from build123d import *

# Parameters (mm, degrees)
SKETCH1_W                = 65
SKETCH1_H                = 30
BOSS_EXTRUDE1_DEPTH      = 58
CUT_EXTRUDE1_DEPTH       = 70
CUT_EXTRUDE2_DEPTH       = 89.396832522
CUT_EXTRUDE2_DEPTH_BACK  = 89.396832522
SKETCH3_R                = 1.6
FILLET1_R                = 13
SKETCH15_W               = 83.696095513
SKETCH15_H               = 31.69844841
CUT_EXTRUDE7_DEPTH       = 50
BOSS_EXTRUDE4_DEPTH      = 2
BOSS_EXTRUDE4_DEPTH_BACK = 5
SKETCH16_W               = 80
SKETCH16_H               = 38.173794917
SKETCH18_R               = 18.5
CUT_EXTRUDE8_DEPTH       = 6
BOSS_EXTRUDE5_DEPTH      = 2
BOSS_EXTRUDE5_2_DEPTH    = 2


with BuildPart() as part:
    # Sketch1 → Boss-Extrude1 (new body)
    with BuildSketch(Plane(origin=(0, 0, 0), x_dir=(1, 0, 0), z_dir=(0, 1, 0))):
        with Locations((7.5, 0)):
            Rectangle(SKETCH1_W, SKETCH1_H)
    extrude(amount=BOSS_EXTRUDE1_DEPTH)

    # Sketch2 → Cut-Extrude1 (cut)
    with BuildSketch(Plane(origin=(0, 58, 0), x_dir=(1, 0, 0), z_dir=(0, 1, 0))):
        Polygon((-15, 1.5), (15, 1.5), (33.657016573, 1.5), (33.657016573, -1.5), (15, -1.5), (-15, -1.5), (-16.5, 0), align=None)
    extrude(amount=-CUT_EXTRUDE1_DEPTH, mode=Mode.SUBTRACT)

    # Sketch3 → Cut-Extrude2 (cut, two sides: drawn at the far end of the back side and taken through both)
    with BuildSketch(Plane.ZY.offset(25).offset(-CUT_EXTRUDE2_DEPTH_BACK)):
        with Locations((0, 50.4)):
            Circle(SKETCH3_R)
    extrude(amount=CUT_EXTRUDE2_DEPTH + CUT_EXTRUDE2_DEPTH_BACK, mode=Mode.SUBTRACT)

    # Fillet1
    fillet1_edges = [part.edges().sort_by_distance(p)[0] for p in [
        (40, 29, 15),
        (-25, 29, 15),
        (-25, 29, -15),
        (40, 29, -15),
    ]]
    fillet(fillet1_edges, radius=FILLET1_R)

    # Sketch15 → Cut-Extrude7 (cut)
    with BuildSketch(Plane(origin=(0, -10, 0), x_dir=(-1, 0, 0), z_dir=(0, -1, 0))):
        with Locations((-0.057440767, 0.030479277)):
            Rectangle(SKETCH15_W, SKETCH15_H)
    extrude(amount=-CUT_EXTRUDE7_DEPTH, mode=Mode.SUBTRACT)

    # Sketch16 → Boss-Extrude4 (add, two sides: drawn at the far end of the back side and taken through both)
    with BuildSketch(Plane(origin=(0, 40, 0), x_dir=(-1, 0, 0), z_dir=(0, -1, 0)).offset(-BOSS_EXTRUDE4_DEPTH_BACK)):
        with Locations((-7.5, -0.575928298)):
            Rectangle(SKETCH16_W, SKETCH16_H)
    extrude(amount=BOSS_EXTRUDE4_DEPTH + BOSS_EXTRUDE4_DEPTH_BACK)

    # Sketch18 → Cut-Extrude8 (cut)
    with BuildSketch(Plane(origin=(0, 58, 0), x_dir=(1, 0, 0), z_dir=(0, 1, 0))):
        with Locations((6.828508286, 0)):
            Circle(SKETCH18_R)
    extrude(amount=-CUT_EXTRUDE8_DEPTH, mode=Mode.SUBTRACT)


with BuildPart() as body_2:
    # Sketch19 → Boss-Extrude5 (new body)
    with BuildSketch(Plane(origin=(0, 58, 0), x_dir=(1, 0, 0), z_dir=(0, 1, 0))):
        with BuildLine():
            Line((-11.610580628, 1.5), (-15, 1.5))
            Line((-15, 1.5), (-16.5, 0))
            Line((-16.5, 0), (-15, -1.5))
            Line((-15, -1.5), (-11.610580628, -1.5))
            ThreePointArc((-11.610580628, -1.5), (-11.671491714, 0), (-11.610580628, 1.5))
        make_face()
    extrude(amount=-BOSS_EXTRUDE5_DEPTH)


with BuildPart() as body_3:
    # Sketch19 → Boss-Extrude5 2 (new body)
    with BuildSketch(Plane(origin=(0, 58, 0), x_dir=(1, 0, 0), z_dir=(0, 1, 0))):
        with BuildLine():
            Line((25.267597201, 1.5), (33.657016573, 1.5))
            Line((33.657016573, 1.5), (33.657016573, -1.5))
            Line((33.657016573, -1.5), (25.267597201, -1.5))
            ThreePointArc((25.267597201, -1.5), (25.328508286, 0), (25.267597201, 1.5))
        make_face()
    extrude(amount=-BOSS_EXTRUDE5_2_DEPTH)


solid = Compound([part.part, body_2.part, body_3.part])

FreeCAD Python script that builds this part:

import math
import FreeCAD as App
import Part
import Sketcher
from FreeCAD import Vector
Q = App.Units.Quantity


def edges_at(feature, points):
    """Names of the edges that pass closest to the given points."""
    edges = feature.Shape.Edges
    near = lambda p: min(range(len(edges)), key=lambda i: edges[i].distToShape(Part.Vertex(*p))[0])
    return sorted({f"Edge{near(p) + 1}" for p in points})


def add_polygon(sketch, points):
    """Adds a closed chain of lines whose ends are joined by coincident constraints."""
    first, n = sketch.GeometryCount, len(points)
    for a, b in zip(points, points[1:] + points[:1]):
        sketch.addGeometry(Part.LineSegment(App.Vector(*a, 0), App.Vector(*b, 0)), False)
    for i in range(n):
        sketch.addConstraint(Sketcher.Constraint("Coincident", first + i, 2, first + (i + 1) % n, 1))

doc = App.newDocument("Part")
body = doc.addObject("PartDesign::Body", "Body")

# Sketch on XZ plane
sketch1 = doc.addObject("Sketcher::SketchObject", "Sketch")
body.addObject(sketch1)
sketch1.AttachmentSupport = (doc.XZ_Plane, [""])
sketch1.MapMode = "FlatFace"
add_polygon(sketch1, [(-25, -15), (-25, 15), (40, 15), (40, -15)])  # lines 0-3
sketch1.addConstraint(Sketcher.Constraint("Vertical", 0))
sketch1.addConstraint(Sketcher.Constraint("Horizontal", 1))
sketch1.addConstraint(Sketcher.Constraint("Vertical", 2))
sketch1.addConstraint(Sketcher.Constraint("Horizontal", 3))
sketch1.addConstraint(Sketcher.Constraint("DistanceX", 1, 1, 1, 2, Q("65 mm")))
sketch1.addConstraint(Sketcher.Constraint("DistanceY", 0, 1, 0, 2, Q("30 mm")))
sketch1.addConstraint(Sketcher.Constraint("DistanceX", 0, 2, -1, 1, Q("25 mm")))
sketch1.addConstraint(Sketcher.Constraint("DistanceY", -1, 1, 0, 2, Q("15 mm")))
pad1 = doc.addObject("PartDesign::Pad", "Pad")
body.addObject(pad1)
pad1.Profile = sketch1
pad1.Length = 58
pad1.Reversed = True

# Sketch on XZ plane
sketch2 = doc.addObject("Sketcher::SketchObject", "Sketch001")
body.addObject(sketch2)
sketch2.AttachmentSupport = (doc.XZ_Plane, [""])
sketch2.MapMode = "FlatFace"
sketch2.AttachmentOffset = App.Placement(Vector(0, 0, -58), App.Rotation())
add_polygon(sketch2, [(33.657017, -1.5), (-15, -1.5), (-16.5, 0), (-15, 1.5), (33.657017, 1.5)])  # lines 0-4
sketch2.addConstraint(Sketcher.Constraint("Horizontal", 0))
sketch2.addConstraint(Sketcher.Constraint("Horizontal", 3))
sketch2.addConstraint(Sketcher.Constraint("Vertical", 4))
sketch2.addConstraint(Sketcher.Constraint("Symmetric", 0, 2, 2, 2, -1))
sketch2.addConstraint(Sketcher.Constraint("PointOnObject", 1, 2, -1))
sketch2.addConstraint(Sketcher.Constraint("Perpendicular", 1, 2))
sketch2.addConstraint(Sketcher.Constraint("DistanceY", 4, 2, 4, 1, Q("3 mm")))
sketch2.addConstraint(Sketcher.Constraint("DistanceX", 0, 2, -1, 1, Q("15 mm")))
sketch2.addConstraint(Sketcher.Constraint("DistanceX", 0, 2, 0, 1, Q("48.657017 mm")))
pocket1 = doc.addObject("PartDesign::Pocket", "Pocket")
body.addObject(pocket1)
pocket1.Profile = sketch2
pocket1.Length = 70
pocket1.Reversed = True

# Sketch on YZ plane
sketch3 = doc.addObject("Sketcher::SketchObject", "Sketch002")
body.addObject(sketch3)
sketch3.AttachmentSupport = (doc.YZ_Plane, [""])
sketch3.MapMode = "FlatFace"
sketch3.AttachmentOffset = App.Placement(Vector(0, 0, -25), App.Rotation())
sketch3.addGeometry(Part.Circle(Vector(50.4, 0, 0), Vector(0, 0, 1), 1.6), False)
sketch3.addConstraint(Sketcher.Constraint("PointOnObject", 0, 3, -1))
sketch3.addConstraint(Sketcher.Constraint("Diameter", 0, Q("3.2 mm")))
sketch3.addConstraint(Sketcher.Constraint("DistanceX", -1, 1, 0, 3, Q("50.4 mm")))
pocket2 = doc.addObject("PartDesign::Pocket", "Pocket001")
body.addObject(pocket2)
pocket2.Profile = sketch3
pocket2.Type = "ThroughAll"
pocket2.Midplane = True
doc.recompute()

fillet = doc.addObject("PartDesign::Fillet", "Fillet")
body.addObject(fillet)
fillet.Base = (pocket2, edges_at(pocket2, [
    (40, 29, 15),
    (-25, 29, 15),
    (-25, 29, -15),
    (40, 29, -15),
]))
fillet.Radius = 13

# Sketch on XZ plane
sketch4 = doc.addObject("Sketcher::SketchObject", "Sketch003")
body.addObject(sketch4)
sketch4.AttachmentSupport = (doc.XZ_Plane, [""])
sketch4.MapMode = "FlatFace"
sketch4.AttachmentOffset = App.Placement(Vector(0, 0, 10), App.Rotation())
add_polygon(sketch4, [(41.905489, -15.879703), (41.905489, 15.818745), (-41.790607, 15.818745), (-41.790607, -15.879703)])  # lines 0-3
sketch4.addConstraint(Sketcher.Constraint("Vertical", 0))
sketch4.addConstraint(Sketcher.Constraint("Horizontal", 1))
sketch4.addConstraint(Sketcher.Constraint("Vertical", 2))
sketch4.addConstraint(Sketcher.Constraint("Horizontal", 3))
sketch4.addConstraint(Sketcher.Constraint("DistanceY", 0, 1, 0, 2, Q("31.698448 mm")))
sketch4.addConstraint(Sketcher.Constraint("DistanceX", 1, 2, 1, 1, Q("83.696096 mm")))
sketch4.addConstraint(Sketcher.Constraint("DistanceX", -1, 1, 0, 2, Q("41.905489 mm")))
sketch4.addConstraint(Sketcher.Constraint("DistanceY", -1, 1, 0, 2, Q("15.818745 mm")))
pocket3 = doc.addObject("PartDesign::Pocket", "Pocket002")
body.addObject(pocket3)
pocket3.Profile = sketch4
pocket3.Length = 50

# Sketch on XZ plane
sketch5 = doc.addObject("Sketcher::SketchObject", "Sketch004")
body.addObject(sketch5)
sketch5.AttachmentSupport = (doc.XZ_Plane, [""])
sketch5.MapMode = "FlatFace"
sketch5.AttachmentOffset = App.Placement(Vector(0, 0, -40), App.Rotation())
add_polygon(sketch5, [(47.5, -18.510969), (47.5, 19.662826), (-32.5, 19.662826), (-32.5, -18.510969)])  # lines 0-3
sketch5.addConstraint(Sketcher.Constraint("Vertical", 0))
sketch5.addConstraint(Sketcher.Constraint("Horizontal", 1))
sketch5.addConstraint(Sketcher.Constraint("Vertical", 2))
sketch5.addConstraint(Sketcher.Constraint("Horizontal", 3))
sketch5.addConstraint(Sketcher.Constraint("DistanceX", 1, 2, 1, 1, Q("80 mm")))
sketch5.addConstraint(Sketcher.Constraint("DistanceX", -1, 1, 0, 2, Q("47.5 mm")))
sketch5.addConstraint(Sketcher.Constraint("DistanceY", 0, 1, 0, 2, Q("38.173795 mm")))
sketch5.addConstraint(Sketcher.Constraint("DistanceY", 2, 2, -1, 1, Q("18.510969 mm")))
pad2 = doc.addObject("PartDesign::Pad", "Pad001")
body.addObject(pad2)
pad2.Profile = sketch5
pad2.Type = "TwoLengths"
pad2.Length = 2
pad2.Length2 = 5

# Sketch on XZ plane
sketch6 = doc.addObject("Sketcher::SketchObject", "Sketch005")
body.addObject(sketch6)
sketch6.AttachmentSupport = (doc.XZ_Plane, [""])
sketch6.MapMode = "FlatFace"
sketch6.AttachmentOffset = App.Placement(Vector(0, 0, -58), App.Rotation())
sketch6.addGeometry(Part.Circle(Vector(6.828508, 0, 0), Vector(0, 0, 1), 18.5), False)
sketch6.addConstraint(Sketcher.Constraint("PointOnObject", 0, 3, -1))
sketch6.addConstraint(Sketcher.Constraint("Diameter", 0, Q("37 mm")))
sketch6.addConstraint(Sketcher.Constraint("DistanceX", -1, 1, 0, 3, Q("6.828508 mm")))
pocket4 = doc.addObject("PartDesign::Pocket", "Pocket003")
body.addObject(pocket4)
pocket4.Profile = sketch6
pocket4.Length = 6
pocket4.Reversed = True
body2 = doc.addObject("PartDesign::Body", "Body001")

# Sketch on XZ plane
sketch7 = doc.addObject("Sketcher::SketchObject", "Sketch006")
body2.addObject(sketch7)
sketch7.AttachmentSupport = (doc.getObject("XZ_Plane001"), [""])
sketch7.MapMode = "FlatFace"
sketch7.AttachmentOffset = App.Placement(Vector(0, 0, -58), App.Rotation())
sketch7.addGeometry(Part.LineSegment(Vector(-11.610581, -1.5, 0), Vector(-15, -1.5, 0)), False)
sketch7.addGeometry(Part.LineSegment(Vector(-15, -1.5, 0), Vector(-16.5, 0, 0)), False)
sketch7.addGeometry(Part.LineSegment(Vector(-16.5, 0, 0), Vector(-15, 1.5, 0)), False)
sketch7.addGeometry(Part.LineSegment(Vector(-15, 1.5, 0), Vector(-11.610581, 1.5, 0)), False)
sketch7.addGeometry(Part.ArcOfCircle(Part.Circle(Vector(6.828508, 0, 0), Vector(0, 0, 1), 18.5), math.radians(175.349291), math.radians(184.650709)), False)
sketch7.addConstraint(Sketcher.Constraint("Coincident", 0, 2, 1, 1))
sketch7.addConstraint(Sketcher.Constraint("Coincident", 1, 2, 2, 1))
sketch7.addConstraint(Sketcher.Constraint("Coincident", 2, 2, 3, 1))
sketch7.addConstraint(Sketcher.Constraint("Coincident", 3, 2, 4, 1))
sketch7.addConstraint(Sketcher.Constraint("Coincident", 4, 2, 0, 1))
sketch7.addConstraint(Sketcher.Constraint("Horizontal", 0))
sketch7.addConstraint(Sketcher.Constraint("Horizontal", 3))
sketch7.addConstraint(Sketcher.Constraint("Symmetric", 0, 2, 2, 2, -1))
sketch7.addConstraint(Sketcher.Constraint("PointOnObject", 4, 3, -1))
sketch7.addConstraint(Sketcher.Constraint("PointOnObject", 1, 2, -1))
sketch7.addConstraint(Sketcher.Constraint("Perpendicular", 1, 2))
sketch7.addConstraint(Sketcher.Constraint("Radius", 4, Q("18.5 mm")))
sketch7.addConstraint(Sketcher.Constraint("DistanceX", 0, 2, -1, 1, Q("15 mm")))
sketch7.addConstraint(Sketcher.Constraint("DistanceY", 0, 2, 2, 2, Q("3 mm")))
sketch7.addConstraint(Sketcher.Constraint("DistanceX", 0, 2, 0, 1, Q("3.389419 mm")))
pad3 = doc.addObject("PartDesign::Pad", "Pad002")
body2.addObject(pad3)
pad3.Profile = sketch7
pad3.Length = 2
body3 = doc.addObject("PartDesign::Body", "Body002")

# Sketch on XZ plane
sketch8 = doc.addObject("Sketcher::SketchObject", "Sketch007")
body3.addObject(sketch8)
sketch8.AttachmentSupport = (doc.getObject("XZ_Plane002"), [""])
sketch8.MapMode = "FlatFace"
sketch8.AttachmentOffset = App.Placement(Vector(0, 0, -58), App.Rotation())
sketch8.addGeometry(Part.LineSegment(Vector(33.657017, -1.5, 0), Vector(25.267597, -1.5, 0)), False)
sketch8.addGeometry(Part.ArcOfCircle(Part.Circle(Vector(6.828508, 0, 0), Vector(0, 0, 1), 18.5), math.radians(-4.650709), math.radians(4.650709)), False)
sketch8.addGeometry(Part.LineSegment(Vector(25.267597, 1.5, 0), Vector(33.657017, 1.5, 0)), False)
sketch8.addGeometry(Part.LineSegment(Vector(33.657017, 1.5, 0), Vector(33.657017, -1.5, 0)), False)
sketch8.addConstraint(Sketcher.Constraint("Coincident", 0, 2, 1, 1))
sketch8.addConstraint(Sketcher.Constraint("Coincident", 1, 2, 2, 1))
sketch8.addConstraint(Sketcher.Constraint("Coincident", 2, 2, 3, 1))
sketch8.addConstraint(Sketcher.Constraint("Coincident", 3, 2, 0, 1))
sketch8.addConstraint(Sketcher.Constraint("Horizontal", 0))
sketch8.addConstraint(Sketcher.Constraint("Horizontal", 2))
sketch8.addConstraint(Sketcher.Constraint("Vertical", 3))
sketch8.addConstraint(Sketcher.Constraint("Symmetric", 0, 2, 1, 2, -1))
sketch8.addConstraint(Sketcher.Constraint("Radius", 1, Q("18.5 mm")))
sketch8.addConstraint(Sketcher.Constraint("DistanceY", 3, 2, 3, 1, Q("3 mm")))
sketch8.addConstraint(Sketcher.Constraint("DistanceX", 0, 2, 0, 1, Q("8.389419 mm")))
sketch8.addConstraint(Sketcher.Constraint("DistanceX", -1, 1, 1, 3, Q("6.828508 mm")))
pad4 = doc.addObject("PartDesign::Pad", "Pad003")
body3.addObject(pad4)
pad4.Profile = sketch8
pad4.Length = 2

doc.recompute()
